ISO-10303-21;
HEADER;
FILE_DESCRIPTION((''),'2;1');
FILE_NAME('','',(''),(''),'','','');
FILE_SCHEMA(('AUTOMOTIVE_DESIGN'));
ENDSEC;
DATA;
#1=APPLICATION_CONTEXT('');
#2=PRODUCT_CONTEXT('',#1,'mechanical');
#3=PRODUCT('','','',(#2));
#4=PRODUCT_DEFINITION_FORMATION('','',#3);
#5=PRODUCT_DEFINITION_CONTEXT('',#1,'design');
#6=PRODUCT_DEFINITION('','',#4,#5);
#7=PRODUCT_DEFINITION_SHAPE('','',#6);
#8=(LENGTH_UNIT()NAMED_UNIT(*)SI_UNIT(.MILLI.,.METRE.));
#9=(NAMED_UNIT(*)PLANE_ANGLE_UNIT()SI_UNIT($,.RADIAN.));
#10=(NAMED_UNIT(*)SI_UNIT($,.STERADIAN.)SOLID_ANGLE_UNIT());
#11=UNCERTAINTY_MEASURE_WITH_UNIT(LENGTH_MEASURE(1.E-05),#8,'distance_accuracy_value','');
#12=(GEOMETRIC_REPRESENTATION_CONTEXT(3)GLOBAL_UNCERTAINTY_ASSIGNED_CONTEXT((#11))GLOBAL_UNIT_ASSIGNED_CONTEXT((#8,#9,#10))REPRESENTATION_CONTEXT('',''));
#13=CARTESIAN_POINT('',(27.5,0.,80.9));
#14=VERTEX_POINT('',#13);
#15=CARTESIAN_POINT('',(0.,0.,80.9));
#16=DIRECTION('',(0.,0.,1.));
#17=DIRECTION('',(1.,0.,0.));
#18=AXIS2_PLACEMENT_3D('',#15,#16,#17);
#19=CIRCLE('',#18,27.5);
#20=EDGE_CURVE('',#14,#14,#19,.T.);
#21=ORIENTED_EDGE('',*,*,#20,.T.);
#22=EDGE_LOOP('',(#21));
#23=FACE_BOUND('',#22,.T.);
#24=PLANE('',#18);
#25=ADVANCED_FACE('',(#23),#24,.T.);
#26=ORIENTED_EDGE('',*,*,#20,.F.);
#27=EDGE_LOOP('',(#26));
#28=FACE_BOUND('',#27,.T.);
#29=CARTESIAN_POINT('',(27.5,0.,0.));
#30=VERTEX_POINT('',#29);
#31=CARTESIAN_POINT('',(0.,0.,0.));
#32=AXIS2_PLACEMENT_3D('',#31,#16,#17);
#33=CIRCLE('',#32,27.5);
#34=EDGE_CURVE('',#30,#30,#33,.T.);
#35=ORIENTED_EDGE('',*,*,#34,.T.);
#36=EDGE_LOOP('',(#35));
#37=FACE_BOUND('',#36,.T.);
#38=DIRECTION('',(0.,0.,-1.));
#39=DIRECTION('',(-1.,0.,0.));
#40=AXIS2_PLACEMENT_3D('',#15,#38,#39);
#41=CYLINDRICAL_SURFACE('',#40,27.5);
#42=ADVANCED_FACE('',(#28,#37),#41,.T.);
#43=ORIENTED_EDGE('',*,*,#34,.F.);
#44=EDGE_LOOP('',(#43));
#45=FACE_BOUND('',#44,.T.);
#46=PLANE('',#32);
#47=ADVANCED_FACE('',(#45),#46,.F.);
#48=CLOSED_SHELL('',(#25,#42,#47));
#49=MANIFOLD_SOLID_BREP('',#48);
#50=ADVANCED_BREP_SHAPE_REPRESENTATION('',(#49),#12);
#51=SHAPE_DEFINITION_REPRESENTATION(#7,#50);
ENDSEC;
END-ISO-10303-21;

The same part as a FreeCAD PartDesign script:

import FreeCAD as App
import Part
import Sketcher

V = App.Vector

doc = App.newDocument("Part")
body = doc.addObject("PartDesign::Body", "Body")

# Sketch on XY plane
sketch1 = body.newObject("Sketcher::SketchObject", "Sketch")
sketch1.AttachmentSupport = (doc.getObject("XY_Plane"), [""])
sketch1.MapMode = "FlatFace"
sketch1.addGeometry(Part.Circle(V(0, 0, 0), V(0, 0, 1), 28), False)
sketch1.addConstraint([
    Sketcher.Constraint("Coincident", 0, 3, -1, 1),
    Sketcher.Constraint("Diameter", 0, 55.0),
])
pad1 = body.newObject("PartDesign::Pad", "Pad")
pad1.Profile = sketch1
pad1.Length = 80.9

doc.recompute()
